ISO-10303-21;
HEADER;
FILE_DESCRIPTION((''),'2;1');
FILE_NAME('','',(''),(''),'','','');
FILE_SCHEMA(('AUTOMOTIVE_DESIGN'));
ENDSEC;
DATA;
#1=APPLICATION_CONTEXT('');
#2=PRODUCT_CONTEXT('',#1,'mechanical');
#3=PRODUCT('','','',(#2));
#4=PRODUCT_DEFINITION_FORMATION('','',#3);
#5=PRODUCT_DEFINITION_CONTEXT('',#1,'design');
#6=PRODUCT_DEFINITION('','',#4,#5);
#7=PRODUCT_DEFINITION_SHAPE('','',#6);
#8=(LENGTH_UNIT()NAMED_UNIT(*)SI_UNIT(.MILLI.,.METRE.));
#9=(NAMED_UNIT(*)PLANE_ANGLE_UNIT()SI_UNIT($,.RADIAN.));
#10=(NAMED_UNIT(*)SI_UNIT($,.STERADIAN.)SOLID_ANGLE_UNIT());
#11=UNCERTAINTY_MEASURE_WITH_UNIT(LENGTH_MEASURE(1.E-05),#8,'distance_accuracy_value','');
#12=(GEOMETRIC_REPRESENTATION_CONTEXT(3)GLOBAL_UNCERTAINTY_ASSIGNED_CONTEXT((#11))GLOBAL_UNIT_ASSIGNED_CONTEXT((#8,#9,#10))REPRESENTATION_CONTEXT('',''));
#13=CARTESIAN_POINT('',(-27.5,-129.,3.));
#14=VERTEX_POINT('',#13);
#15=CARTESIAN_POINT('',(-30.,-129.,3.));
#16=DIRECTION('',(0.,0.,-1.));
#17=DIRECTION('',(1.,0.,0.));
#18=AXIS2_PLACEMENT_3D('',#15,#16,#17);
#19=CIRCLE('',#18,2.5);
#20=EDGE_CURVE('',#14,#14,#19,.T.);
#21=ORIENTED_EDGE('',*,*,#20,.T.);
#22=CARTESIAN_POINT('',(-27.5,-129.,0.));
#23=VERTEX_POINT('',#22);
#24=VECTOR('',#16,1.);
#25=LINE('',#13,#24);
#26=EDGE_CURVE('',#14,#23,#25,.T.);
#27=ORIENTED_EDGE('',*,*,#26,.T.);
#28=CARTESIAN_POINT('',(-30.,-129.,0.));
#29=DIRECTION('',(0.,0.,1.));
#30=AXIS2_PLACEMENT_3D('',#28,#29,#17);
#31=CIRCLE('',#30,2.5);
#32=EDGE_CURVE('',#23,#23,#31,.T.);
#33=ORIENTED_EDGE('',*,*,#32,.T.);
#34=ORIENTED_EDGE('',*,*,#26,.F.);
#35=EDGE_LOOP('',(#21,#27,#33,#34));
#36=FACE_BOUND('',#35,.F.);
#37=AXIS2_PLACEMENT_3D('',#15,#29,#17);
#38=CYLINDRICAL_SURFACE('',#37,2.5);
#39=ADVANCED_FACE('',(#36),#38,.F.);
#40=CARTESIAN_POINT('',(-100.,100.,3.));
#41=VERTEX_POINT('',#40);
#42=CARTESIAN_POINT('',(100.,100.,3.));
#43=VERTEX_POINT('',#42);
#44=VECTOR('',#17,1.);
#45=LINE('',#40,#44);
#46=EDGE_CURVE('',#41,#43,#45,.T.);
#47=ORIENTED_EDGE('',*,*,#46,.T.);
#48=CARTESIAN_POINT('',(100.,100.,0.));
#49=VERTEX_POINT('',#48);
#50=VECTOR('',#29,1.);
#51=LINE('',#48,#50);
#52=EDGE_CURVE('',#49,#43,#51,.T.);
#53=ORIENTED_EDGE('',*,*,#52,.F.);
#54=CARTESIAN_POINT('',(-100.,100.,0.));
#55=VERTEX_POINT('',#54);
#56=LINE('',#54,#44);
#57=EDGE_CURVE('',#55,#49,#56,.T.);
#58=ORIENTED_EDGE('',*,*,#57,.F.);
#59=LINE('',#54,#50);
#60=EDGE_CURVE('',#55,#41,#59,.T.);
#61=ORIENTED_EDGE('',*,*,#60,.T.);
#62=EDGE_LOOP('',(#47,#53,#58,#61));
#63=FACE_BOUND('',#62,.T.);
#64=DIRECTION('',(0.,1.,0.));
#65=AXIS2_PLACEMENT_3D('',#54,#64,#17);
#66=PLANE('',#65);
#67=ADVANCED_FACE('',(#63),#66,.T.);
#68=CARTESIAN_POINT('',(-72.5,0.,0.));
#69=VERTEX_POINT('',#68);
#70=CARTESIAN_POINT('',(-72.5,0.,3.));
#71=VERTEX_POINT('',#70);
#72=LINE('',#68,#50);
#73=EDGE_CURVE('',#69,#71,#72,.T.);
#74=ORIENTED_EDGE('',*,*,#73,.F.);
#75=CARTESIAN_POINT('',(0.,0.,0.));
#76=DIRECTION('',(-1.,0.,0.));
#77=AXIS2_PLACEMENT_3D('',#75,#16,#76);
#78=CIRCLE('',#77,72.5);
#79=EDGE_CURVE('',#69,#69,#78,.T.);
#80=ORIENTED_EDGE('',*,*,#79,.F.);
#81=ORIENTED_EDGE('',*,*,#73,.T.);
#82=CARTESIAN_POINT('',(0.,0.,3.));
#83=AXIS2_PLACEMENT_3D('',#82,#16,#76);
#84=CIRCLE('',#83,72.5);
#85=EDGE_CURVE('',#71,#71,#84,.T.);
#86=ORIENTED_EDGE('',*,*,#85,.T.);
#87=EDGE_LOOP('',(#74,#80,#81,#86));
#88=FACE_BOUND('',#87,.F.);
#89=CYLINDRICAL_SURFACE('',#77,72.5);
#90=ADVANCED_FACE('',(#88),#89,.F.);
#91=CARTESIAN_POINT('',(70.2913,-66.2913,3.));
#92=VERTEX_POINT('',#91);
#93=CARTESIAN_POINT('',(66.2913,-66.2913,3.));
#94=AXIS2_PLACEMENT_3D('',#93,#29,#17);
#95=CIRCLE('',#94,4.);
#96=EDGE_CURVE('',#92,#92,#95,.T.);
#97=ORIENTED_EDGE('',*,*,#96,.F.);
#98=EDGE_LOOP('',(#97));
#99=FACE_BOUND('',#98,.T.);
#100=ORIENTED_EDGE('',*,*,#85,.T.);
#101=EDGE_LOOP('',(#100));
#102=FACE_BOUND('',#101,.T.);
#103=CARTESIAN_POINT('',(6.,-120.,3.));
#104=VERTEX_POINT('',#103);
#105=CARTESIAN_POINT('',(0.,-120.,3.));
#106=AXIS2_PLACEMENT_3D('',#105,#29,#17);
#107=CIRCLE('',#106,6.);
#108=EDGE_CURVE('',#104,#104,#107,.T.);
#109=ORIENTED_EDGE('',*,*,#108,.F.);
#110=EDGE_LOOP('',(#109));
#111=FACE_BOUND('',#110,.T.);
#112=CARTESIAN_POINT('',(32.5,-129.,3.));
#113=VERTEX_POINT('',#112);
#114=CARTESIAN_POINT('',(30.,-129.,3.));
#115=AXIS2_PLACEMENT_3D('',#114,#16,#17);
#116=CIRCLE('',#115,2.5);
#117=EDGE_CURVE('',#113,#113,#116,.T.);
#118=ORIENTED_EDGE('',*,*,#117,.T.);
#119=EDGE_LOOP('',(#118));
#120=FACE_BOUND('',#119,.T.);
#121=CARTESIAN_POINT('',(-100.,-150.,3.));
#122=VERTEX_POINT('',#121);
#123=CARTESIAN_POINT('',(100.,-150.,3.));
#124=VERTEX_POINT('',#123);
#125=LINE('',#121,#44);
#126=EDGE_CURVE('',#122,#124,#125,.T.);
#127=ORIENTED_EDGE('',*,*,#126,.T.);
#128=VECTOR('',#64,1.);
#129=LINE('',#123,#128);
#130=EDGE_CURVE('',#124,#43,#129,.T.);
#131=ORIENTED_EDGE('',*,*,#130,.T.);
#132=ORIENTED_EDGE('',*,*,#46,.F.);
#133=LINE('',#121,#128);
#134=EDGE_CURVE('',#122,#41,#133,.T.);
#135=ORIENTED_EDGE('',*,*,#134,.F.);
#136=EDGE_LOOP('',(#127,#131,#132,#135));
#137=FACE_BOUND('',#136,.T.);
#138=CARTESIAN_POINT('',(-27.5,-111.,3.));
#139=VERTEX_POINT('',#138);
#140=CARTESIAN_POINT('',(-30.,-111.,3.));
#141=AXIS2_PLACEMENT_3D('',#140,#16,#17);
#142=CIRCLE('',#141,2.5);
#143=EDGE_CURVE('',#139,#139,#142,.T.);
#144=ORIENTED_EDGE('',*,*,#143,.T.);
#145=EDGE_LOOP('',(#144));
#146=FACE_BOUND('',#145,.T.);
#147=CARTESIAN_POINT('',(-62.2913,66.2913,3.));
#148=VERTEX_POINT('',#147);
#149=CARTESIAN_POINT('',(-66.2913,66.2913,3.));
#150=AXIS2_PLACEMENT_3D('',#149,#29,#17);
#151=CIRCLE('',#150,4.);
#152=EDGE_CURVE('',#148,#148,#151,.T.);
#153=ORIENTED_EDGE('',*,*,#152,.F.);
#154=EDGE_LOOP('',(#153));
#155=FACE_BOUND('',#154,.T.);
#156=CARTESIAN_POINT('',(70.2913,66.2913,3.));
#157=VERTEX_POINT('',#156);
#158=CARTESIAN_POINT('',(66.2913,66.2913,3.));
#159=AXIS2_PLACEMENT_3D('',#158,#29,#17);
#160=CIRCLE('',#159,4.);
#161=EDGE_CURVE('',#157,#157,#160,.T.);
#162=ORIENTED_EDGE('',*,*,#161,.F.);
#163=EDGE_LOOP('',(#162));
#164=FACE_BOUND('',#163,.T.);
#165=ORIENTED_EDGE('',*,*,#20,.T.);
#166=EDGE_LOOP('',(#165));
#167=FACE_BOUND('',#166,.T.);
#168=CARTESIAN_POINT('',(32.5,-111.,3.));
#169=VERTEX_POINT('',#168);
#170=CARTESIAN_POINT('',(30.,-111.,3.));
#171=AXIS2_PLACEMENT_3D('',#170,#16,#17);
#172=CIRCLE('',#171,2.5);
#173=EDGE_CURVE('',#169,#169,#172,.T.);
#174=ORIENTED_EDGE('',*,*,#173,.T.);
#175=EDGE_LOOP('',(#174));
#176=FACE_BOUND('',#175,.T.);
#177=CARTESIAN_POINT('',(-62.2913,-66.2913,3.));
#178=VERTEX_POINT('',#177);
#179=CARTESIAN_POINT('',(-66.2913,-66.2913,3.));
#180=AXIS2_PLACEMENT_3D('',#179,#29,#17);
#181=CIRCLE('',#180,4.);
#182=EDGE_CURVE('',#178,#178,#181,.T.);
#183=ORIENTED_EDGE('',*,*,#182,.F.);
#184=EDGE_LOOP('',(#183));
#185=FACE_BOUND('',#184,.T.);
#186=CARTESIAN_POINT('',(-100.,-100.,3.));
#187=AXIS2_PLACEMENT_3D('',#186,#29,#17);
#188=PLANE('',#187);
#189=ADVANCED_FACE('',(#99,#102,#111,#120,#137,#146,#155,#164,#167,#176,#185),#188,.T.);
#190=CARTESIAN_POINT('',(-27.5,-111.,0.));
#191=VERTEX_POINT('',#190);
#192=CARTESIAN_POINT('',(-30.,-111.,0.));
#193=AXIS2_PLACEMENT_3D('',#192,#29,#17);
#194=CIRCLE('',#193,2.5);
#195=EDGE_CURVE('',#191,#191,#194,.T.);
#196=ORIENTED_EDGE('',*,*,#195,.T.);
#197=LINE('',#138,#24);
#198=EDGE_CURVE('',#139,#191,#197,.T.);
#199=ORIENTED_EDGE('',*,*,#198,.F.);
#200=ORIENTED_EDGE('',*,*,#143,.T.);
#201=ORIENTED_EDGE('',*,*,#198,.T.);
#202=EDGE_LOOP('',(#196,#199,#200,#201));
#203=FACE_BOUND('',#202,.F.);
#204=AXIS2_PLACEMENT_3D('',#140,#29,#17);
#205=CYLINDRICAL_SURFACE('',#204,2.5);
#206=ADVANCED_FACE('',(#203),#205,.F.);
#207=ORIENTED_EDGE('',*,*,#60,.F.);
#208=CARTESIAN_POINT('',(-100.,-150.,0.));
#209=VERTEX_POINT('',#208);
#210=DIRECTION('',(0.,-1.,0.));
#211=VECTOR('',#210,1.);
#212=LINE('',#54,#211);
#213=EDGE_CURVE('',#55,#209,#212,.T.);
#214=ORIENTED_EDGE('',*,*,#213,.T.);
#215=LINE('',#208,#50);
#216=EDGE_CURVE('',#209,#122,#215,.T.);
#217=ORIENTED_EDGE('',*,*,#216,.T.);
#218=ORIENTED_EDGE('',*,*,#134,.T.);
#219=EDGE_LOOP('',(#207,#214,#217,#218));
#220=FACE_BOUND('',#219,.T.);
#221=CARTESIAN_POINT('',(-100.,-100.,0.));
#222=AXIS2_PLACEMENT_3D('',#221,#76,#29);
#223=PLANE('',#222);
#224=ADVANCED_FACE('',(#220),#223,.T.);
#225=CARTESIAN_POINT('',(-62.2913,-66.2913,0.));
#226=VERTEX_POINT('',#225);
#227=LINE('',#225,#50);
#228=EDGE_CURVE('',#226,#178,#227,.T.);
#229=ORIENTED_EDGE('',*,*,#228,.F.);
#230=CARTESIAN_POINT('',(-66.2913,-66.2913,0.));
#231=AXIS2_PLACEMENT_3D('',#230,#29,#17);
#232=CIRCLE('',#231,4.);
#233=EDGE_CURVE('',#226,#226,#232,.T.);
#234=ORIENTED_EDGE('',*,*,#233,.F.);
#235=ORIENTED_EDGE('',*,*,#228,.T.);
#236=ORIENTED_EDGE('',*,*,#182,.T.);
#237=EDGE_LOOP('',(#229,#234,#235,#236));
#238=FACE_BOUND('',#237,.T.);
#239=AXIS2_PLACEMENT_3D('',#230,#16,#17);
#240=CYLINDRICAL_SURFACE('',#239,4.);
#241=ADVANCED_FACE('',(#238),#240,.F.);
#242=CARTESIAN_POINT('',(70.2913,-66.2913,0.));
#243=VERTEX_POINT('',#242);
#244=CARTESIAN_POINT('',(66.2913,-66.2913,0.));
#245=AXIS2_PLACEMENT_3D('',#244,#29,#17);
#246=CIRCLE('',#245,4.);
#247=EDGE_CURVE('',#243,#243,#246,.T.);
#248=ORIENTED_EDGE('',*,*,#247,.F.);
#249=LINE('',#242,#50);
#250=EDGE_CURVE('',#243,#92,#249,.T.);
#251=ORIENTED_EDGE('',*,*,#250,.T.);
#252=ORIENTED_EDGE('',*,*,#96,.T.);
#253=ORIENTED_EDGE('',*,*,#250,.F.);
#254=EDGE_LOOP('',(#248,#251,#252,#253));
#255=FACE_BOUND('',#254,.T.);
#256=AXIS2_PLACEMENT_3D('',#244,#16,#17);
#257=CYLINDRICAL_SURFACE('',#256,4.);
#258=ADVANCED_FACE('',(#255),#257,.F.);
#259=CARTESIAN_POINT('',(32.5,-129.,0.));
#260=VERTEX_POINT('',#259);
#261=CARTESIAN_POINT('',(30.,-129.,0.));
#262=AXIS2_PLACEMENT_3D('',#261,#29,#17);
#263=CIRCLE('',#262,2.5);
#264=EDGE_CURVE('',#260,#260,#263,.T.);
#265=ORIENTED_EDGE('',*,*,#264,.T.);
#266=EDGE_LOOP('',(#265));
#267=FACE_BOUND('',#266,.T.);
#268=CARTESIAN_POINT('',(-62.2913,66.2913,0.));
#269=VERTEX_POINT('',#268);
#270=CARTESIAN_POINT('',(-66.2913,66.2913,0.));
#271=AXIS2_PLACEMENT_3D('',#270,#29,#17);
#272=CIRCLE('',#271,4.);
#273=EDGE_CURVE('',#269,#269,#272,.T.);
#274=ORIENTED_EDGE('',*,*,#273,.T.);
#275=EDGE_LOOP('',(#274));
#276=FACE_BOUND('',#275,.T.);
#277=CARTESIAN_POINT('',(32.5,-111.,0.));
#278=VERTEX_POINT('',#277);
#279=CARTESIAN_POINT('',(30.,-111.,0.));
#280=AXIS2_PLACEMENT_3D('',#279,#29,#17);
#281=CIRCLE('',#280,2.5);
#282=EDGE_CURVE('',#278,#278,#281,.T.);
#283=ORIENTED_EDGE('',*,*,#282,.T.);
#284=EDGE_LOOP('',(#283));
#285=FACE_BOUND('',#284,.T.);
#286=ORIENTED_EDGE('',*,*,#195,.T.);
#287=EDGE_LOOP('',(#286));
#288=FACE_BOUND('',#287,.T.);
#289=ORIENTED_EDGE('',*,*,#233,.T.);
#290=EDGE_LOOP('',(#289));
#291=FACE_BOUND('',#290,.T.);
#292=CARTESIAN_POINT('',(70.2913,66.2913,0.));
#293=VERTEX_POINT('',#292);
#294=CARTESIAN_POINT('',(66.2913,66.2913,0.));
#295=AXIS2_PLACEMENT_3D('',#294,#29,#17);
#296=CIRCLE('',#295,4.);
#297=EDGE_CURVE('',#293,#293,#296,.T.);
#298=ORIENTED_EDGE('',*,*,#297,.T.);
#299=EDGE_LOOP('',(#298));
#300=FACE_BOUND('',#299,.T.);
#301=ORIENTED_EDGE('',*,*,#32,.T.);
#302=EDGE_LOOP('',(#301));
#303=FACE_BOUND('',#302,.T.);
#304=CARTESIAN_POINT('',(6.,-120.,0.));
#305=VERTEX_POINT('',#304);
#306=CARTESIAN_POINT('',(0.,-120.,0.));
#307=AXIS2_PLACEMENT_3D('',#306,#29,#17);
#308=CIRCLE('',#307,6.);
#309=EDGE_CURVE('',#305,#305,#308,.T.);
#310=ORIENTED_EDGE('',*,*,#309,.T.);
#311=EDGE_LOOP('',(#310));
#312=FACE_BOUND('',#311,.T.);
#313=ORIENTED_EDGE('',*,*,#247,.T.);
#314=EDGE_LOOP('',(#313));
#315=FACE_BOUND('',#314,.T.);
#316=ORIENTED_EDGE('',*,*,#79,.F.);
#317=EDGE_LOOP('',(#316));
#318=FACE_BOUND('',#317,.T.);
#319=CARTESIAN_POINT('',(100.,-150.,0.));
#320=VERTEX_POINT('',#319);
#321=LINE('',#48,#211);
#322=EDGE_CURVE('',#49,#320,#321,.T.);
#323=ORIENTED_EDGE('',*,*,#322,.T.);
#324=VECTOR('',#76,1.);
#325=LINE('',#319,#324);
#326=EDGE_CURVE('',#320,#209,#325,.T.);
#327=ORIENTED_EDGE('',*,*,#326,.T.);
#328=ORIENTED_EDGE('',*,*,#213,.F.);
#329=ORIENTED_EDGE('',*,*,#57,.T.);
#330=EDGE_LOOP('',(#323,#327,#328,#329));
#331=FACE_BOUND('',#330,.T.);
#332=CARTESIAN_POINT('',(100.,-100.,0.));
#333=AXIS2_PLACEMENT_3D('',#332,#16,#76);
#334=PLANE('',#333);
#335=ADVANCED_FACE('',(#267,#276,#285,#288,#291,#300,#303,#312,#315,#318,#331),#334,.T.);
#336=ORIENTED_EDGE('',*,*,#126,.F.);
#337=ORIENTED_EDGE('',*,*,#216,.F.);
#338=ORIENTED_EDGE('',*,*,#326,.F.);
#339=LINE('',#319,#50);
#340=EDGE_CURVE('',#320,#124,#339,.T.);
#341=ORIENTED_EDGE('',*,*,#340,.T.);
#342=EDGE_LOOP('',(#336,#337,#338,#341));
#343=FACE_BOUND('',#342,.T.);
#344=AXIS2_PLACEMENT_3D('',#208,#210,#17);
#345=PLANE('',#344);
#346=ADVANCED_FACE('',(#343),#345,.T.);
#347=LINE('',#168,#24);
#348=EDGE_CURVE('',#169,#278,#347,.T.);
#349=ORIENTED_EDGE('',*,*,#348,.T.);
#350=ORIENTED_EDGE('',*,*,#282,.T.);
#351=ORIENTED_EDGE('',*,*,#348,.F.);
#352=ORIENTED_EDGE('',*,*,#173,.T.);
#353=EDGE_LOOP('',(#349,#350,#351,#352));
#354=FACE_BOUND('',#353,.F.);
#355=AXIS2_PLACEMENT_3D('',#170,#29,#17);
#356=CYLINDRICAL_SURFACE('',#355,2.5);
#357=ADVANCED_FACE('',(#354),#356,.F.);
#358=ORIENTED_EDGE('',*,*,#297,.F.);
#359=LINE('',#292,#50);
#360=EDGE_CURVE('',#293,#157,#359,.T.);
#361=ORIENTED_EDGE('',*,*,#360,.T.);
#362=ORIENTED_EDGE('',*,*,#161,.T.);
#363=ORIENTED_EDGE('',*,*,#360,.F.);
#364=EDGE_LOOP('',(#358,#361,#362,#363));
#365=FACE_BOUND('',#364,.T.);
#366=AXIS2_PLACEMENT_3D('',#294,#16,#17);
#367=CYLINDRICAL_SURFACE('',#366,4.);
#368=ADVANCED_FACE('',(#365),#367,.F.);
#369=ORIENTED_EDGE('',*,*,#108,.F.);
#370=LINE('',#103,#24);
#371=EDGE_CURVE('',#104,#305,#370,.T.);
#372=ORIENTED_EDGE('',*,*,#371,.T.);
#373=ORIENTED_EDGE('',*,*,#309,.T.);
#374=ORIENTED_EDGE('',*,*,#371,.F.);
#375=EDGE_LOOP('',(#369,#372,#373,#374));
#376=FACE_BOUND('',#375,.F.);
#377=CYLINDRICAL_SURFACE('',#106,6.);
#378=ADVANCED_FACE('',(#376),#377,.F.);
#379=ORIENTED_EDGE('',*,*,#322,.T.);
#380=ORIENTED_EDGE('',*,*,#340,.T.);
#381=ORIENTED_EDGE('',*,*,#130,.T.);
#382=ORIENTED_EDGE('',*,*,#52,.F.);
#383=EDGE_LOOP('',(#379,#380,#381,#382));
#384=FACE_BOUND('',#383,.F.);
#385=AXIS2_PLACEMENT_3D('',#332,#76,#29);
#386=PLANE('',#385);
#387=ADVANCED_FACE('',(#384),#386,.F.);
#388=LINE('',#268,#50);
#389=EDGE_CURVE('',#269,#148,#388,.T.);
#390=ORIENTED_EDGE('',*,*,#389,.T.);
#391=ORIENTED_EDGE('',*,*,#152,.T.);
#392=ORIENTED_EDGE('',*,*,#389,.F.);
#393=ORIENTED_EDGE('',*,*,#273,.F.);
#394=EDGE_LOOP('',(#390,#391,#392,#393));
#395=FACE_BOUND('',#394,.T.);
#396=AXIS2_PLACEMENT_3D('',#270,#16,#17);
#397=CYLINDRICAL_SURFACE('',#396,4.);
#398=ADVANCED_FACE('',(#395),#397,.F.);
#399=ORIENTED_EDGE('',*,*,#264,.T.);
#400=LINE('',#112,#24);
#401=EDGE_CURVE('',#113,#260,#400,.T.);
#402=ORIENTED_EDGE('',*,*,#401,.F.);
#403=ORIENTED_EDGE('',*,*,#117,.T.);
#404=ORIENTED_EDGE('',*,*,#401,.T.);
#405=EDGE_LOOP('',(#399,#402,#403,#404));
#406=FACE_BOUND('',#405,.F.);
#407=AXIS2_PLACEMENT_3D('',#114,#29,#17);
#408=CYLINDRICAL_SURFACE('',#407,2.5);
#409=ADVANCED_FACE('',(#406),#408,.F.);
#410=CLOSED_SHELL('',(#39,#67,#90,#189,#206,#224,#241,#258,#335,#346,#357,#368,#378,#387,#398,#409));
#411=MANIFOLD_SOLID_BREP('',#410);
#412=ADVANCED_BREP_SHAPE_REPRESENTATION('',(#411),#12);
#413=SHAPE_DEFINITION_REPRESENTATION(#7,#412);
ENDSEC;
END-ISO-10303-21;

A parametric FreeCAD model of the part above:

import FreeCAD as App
import Part
import Sketcher

V = App.Vector
Q = App.Units.Quantity

doc = App.newDocument("Part")
body = doc.addObject("PartDesign::Body", "Body")

# Sketch on XY plane
sketch1 = doc.addObject("Sketcher::SketchObject", "Sketch")
body.addObject(sketch1)
sketch1.AttachmentSupport = (doc.XY_Plane, [""])
sketch1.MapMode = "FlatFace"
sketch1.addGeometry(Part.LineSegment(V(100, 100, 0), V(-100, 100, 0)), False)
sketch1.addGeometry(Part.LineSegment(V(-100, 100, 0), V(-100, -100, 0)), False)
sketch1.addGeometry(Part.LineSegment(V(-100, -100, 0), V(100, -100, 0)), False)
sketch1.addGeometry(Part.LineSegment(V(100, -100, 0), V(100, 100, 0)), False)
sketch1.addGeometry(Part.Circle(V(-66.3, -66.3, 0), V(0, 0, 1), 4), False)
sketch1.addGeometry(Part.Circle(V(66.3, -66.3, 0), V(0, 0, 1), 4), False)
sketch1.addGeometry(Part.Circle(V(-66.3, 66.3, 0), V(0, 0, 1), 4), False)
sketch1.addGeometry(Part.Circle(V(66.3, 66.3, 0), V(0, 0, 1), 4), False)
sketch1.addConstraint(Sketcher.Constraint("Coincident", 0, 2, 1, 1))
sketch1.addConstraint(Sketcher.Constraint("Coincident", 1, 2, 2, 1))
sketch1.addConstraint(Sketcher.Constraint("Coincident", 2, 2, 3, 1))
sketch1.addConstraint(Sketcher.Constraint("Coincident", 3, 2, 0, 1))
sketch1.addConstraint(Sketcher.Constraint("Horizontal", 0))
sketch1.addConstraint(Sketcher.Constraint("Vertical", 1))
sketch1.addConstraint(Sketcher.Constraint("Horizontal", 2))
sketch1.addConstraint(Sketcher.Constraint("Vertical", 3))
sketch1.addConstraint(Sketcher.Constraint("Equal", 4, 5))
sketch1.addConstraint(Sketcher.Constraint("Equal", 5, 6))
sketch1.addConstraint(Sketcher.Constraint("Equal", 6, 7))
sketch1.addConstraint(Sketcher.Constraint("Symmetric", 5, 3, 6, 3, -1, 1))
sketch1.addConstraint(Sketcher.Constraint("Symmetric", 4, 3, 7, 3, -1, 1))
sketch1.addConstraint(Sketcher.Constraint("Symmetric", 0, 2, 2, 2, -1, 1))
sketch1.addConstraint(Sketcher.Constraint("Symmetric", 4, 3, 5, 3, -2))
sketch1.addConstraint(Sketcher.Constraint("Equal", 2, 1))
sketch1.addConstraint(Sketcher.Constraint("Diameter", 4, Q("8 mm")))
sketch1.addConstraint(Sketcher.Constraint("DistanceX", 0, 2, 0, 1, Q("200 mm")))
sketch1.addConstraint(Sketcher.Constraint("DistanceX", 4, 3, -1, 1, Q("66.2913 mm")))
sketch1.addConstraint(Sketcher.Constraint("DistanceY", 4, 3, -1, 1, Q("66.2913 mm")))
pad1 = doc.addObject("PartDesign::Pad", "Pad")
body.addObject(pad1)
pad1.Profile = sketch1
pad1.Length = 3

# Sketch on XY plane
sketch2 = doc.addObject("Sketcher::SketchObject", "Sketch001")
body.addObject(sketch2)
sketch2.AttachmentSupport = (doc.XY_Plane, [""])
sketch2.MapMode = "FlatFace"
sketch2.addGeometry(Part.Circle(V(0, 0, 0), V(0, 0, 1), 72), False)
sketch2.addConstraint(Sketcher.Constraint("Coincident", 0, 3, -1, 1))
sketch2.addConstraint(Sketcher.Constraint("Diameter", 0, Q("145 mm")))
pocket1 = doc.addObject("PartDesign::Pocket", "Pocket")
body.addObject(pocket1)
pocket1.Profile = sketch2
pocket1.Length = 10
pocket1.Reversed = True

# Sketch on XZ plane
sketch3 = doc.addObject("Sketcher::SketchObject", "Sketch002")
body.addObject(sketch3)
sketch3.AttachmentSupport = (doc.XZ_Plane, [""])
sketch3.MapMode = "FlatFace"
sketch3.AttachmentOffset = App.Placement(V(0, 0, 100), App.Rotation())
sketch3.addGeometry(Part.LineSegment(V(-100, 3, 0), V(-100, 0, 0)), False)
sketch3.addGeometry(Part.LineSegment(V(-100, 0, 0), V(100, 0, 0)), False)
sketch3.addGeometry(Part.LineSegment(V(100, 0, 0), V(100, 3, 0)), False)
sketch3.addGeometry(Part.LineSegment(V(100, 3, 0), V(-100, 3, 0)), False)
sketch3.addConstraint(Sketcher.Constraint("Coincident", 0, 2, 1, 1))
sketch3.addConstraint(Sketcher.Constraint("Coincident", 1, 2, 2, 1))
sketch3.addConstraint(Sketcher.Constraint("Coincident", 2, 2, 3, 1))
sketch3.addConstraint(Sketcher.Constraint("Coincident", 3, 2, 0, 1))
sketch3.addConstraint(Sketcher.Constraint("Vertical", 0))
sketch3.addConstraint(Sketcher.Constraint("Horizontal", 1))
sketch3.addConstraint(Sketcher.Constraint("Vertical", 2))
sketch3.addConstraint(Sketcher.Constraint("Horizontal", 3))
sketch3.addConstraint(Sketcher.Constraint("Symmetric", 0, 2, 1, 2, -1, 1))
sketch3.addConstraint(Sketcher.Constraint("DistanceX", 1, 1, 1, 2, Q("200 mm")))
sketch3.addConstraint(Sketcher.Constraint("DistanceY", 0, 2, 0, 1, Q("3 mm")))
pad2 = doc.addObject("PartDesign::Pad", "Pad001")
body.addObject(pad2)
pad2.Profile = sketch3
pad2.Length = 50

# Sketch on XY plane
sketch4 = doc.addObject("Sketcher::SketchObject", "Sketch003")
body.addObject(sketch4)
sketch4.AttachmentSupport = (doc.XY_Plane, [""])
sketch4.MapMode = "FlatFace"
sketch4.AttachmentOffset = App.Placement(V(0, 0, 3), App.Rotation())
sketch4.addGeometry(Part.Circle(V(0, -120, 0), V(0, 0, 1), 6), False)
sketch4.addConstraint(Sketcher.Constraint("PointOnObject", 0, 3, -2))
sketch4.addConstraint(Sketcher.Constraint("Diameter", 0, Q("12 mm")))
sketch4.addConstraint(Sketcher.Constraint("DistanceY", 0, 3, -1, 1, Q("120 mm")))
pocket2 = doc.addObject("PartDesign::Pocket", "Pocket001")
body.addObject(pocket2)
pocket2.Profile = sketch4
pocket2.Length = 100

# Sketch on XY plane
sketch5 = doc.addObject("Sketcher::SketchObject", "Sketch004")
body.addObject(sketch5)
sketch5.AttachmentSupport = (doc.XY_Plane, [""])
sketch5.MapMode = "FlatFace"
sketch5.AttachmentOffset = App.Placement(V(0, 0, 3), App.Rotation())
sketch5.addGeometry(Part.Circle(V(30, -111, 0), V(0, 0, 1), 2.5), False)
sketch5.addGeometry(Part.Circle(V(-30, -129, 0), V(0, 0, 1), 2.5), False)
sketch5.addGeometry(Part.Circle(V(-30, -111, 0), V(0, 0, 1), 2.5), False)
sketch5.addGeometry(Part.Circle(V(30, -129, 0), V(0, 0, 1), 2.5), False)
sketch5.addConstraint(Sketcher.Constraint("Equal", 0, 1))
sketch5.addConstraint(Sketcher.Constraint("Equal", 1, 2))
sketch5.addConstraint(Sketcher.Constraint("Equal", 2, 3))
sketch5.addConstraint(Sketcher.Constraint("Symmetric", 0, 3, 2, 3, -2))
sketch5.addConstraint(Sketcher.Constraint("Symmetric", 1, 3, 3, 3, -2))
sketch5.addConstraint(Sketcher.Constraint("Vertical", 1, 3, 2, 3))
sketch5.addConstraint(Sketcher.Constraint("Diameter", 0, Q("5 mm")))
sketch5.addConstraint(Sketcher.Constraint("DistanceX", -1, 1, 0, 3, Q("30 mm")))
sketch5.addConstraint(Sketcher.Constraint("DistanceY", 1, 3, 0, 3, Q("18 mm")))
sketch5.addConstraint(Sketcher.Constraint("DistanceY", 0, 3, -1, 1, Q("111 mm")))
pocket3 = doc.addObject("PartDesign::Pocket", "Pocket002")
body.addObject(pocket3)
pocket3.Profile = sketch5
pocket3.Length = 100

doc.recompute()
